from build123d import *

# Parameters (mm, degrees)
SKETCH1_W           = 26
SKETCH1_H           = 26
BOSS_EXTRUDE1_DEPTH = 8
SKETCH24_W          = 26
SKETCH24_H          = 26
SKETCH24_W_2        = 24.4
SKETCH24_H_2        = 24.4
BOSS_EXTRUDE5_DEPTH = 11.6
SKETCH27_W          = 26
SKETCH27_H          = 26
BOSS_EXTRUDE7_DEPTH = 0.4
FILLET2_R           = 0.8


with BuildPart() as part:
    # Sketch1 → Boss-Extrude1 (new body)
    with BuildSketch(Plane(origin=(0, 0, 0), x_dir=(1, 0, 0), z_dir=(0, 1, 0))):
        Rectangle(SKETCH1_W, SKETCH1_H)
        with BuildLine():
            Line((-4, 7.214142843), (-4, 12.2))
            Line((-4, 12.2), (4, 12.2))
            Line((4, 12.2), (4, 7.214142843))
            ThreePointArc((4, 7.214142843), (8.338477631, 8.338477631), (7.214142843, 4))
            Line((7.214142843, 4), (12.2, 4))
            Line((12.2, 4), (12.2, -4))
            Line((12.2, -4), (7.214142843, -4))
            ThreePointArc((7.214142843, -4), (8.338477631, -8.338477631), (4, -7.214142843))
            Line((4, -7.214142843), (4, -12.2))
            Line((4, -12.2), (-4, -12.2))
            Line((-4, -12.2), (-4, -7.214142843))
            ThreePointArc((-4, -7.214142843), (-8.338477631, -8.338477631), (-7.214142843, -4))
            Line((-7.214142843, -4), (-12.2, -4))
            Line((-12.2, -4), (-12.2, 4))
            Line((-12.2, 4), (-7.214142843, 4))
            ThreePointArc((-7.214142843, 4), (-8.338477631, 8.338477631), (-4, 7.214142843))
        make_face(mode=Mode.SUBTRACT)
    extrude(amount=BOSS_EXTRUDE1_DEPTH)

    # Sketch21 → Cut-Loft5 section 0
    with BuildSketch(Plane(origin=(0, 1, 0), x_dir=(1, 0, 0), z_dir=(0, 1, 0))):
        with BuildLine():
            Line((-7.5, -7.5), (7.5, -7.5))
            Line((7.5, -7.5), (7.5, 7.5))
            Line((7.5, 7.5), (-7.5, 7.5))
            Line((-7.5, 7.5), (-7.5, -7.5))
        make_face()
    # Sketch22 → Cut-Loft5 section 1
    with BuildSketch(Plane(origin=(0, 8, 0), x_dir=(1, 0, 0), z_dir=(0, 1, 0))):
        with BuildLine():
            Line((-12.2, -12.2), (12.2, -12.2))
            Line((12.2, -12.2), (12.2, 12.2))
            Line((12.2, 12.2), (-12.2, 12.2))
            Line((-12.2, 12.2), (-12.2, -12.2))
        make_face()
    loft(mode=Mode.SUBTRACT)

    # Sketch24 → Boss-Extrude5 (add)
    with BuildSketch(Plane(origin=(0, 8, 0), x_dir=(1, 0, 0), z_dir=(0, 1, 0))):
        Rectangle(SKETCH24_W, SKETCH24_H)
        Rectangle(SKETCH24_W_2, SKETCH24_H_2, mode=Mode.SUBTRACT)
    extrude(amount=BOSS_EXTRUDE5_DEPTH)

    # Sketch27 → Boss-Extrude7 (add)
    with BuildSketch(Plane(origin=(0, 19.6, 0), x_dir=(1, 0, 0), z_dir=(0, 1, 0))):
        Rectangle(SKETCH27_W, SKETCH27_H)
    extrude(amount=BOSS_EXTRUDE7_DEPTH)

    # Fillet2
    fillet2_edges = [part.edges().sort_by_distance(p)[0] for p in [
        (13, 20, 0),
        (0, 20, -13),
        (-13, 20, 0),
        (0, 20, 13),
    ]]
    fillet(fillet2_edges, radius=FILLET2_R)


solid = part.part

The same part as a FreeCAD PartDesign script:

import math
import FreeCAD as App
import Part
import Sketcher
Q = App.Units.Quantity


def edges_at(feature, points):
    """Names of the edges that pass closest to the given points."""
    edges = feature.Shape.Edges
    near = lambda p: min(range(len(edges)), key=lambda i: edges[i].distToShape(Part.Vertex(*p))[0])
    return sorted({f"Edge{near(p) + 1}" for p in points})

doc = App.newDocument("Part")
body = doc.addObject("PartDesign::Body", "Body")

sketch1 = body.newObject("Sketcher::SketchObject", "Sketch")
sketch1.AttachmentSupport = (doc.getObject("XZ_Plane"), [""])
sketch1.MapMode = "FlatFace"
sketch1.addGeometry([
    Part.LineSegment(App.Vector(-13, -13, 0), App.Vector(-13, 13, 0)),
    Part.LineSegment(App.Vector(-13, 13, 0), App.Vector(13, 13, 0)),
    Part.LineSegment(App.Vector(13, 13, 0), App.Vector(13, -13, 0)),
    Part.LineSegment(App.Vector(13, -13, 0), App.Vector(-13, -13, 0)),
    Part.ArcOfCircle(Part.Circle(App.Vector(-6.5, -6.5, 0), App.Vector(0, 0, 1), 2.6), math.radians(106), math.radians(344)),
    Part.LineSegment(App.Vector(-4, -7.2, 0), App.Vector(-4, -12.2, 0)),
    Part.LineSegment(App.Vector(-4, -12.2, 0), App.Vector(4, -12.2, 0)),
    Part.LineSegment(App.Vector(4, -12.2, 0), App.Vector(4, -7.2, 0)),
    Part.ArcOfCircle(Part.Circle(App.Vector(6.5, -6.5, 0), App.Vector(0, 0, 1), 2.6), math.radians(-164), math.radians(74)),
    Part.LineSegment(App.Vector(7.2, -4, 0), App.Vector(12.2, -4, 0)),
    Part.LineSegment(App.Vector(12.2, -4, 0), App.Vector(12.2, 4, 0)),
    Part.LineSegment(App.Vector(12.2, 4, 0), App.Vector(7.2, 4, 0)),
    Part.ArcOfCircle(Part.Circle(App.Vector(6.5, 6.5, 0), App.Vector(0, 0, 1), 2.6), math.radians(-74), math.radians(164)),
    Part.LineSegment(App.Vector(4, 7.2, 0), App.Vector(4, 12.2, 0)),
    Part.LineSegment(App.Vector(4, 12.2, 0), App.Vector(-4, 12.2, 0)),
    Part.LineSegment(App.Vector(-4, 12.2, 0), App.Vector(-4, 7.2, 0)),
    Part.ArcOfCircle(Part.Circle(App.Vector(-6.5, 6.5, 0), App.Vector(0, 0, 1), 2.6), math.radians(16), math.radians(254)),
    Part.LineSegment(App.Vector(-7.2, 4, 0), App.Vector(-12.2, 4, 0)),
    Part.LineSegment(App.Vector(-12.2, 4, 0), App.Vector(-12.2, -4, 0)),
    Part.LineSegment(App.Vector(-12.2, -4, 0), App.Vector(-7.2, -4, 0)),
], False)
sketch1.addConstraint([
    Sketcher.Constraint("Coincident", 0, 2, 1, 1),
    Sketcher.Constraint("Coincident", 1, 2, 2, 1),
    Sketcher.Constraint("Coincident", 2, 2, 3, 1),
    Sketcher.Constraint("Coincident", 3, 2, 0, 1),
    Sketcher.Constraint("Coincident", 4, 2, 5, 1),
    Sketcher.Constraint("Coincident", 5, 2, 6, 1),
    Sketcher.Constraint("Coincident", 6, 2, 7, 1),
    Sketcher.Constraint("Coincident", 7, 2, 8, 1),
    Sketcher.Constraint("Coincident", 8, 2, 9, 1),
    Sketcher.Constraint("Coincident", 9, 2, 10, 1),
    Sketcher.Constraint("Coincident", 10, 2, 11, 1),
    Sketcher.Constraint("Coincident", 11, 2, 12, 1),
    Sketcher.Constraint("Coincident", 12, 2, 13, 1),
    Sketcher.Constraint("Coincident", 13, 2, 14, 1),
    Sketcher.Constraint("Coincident", 14, 2, 15, 1),
    Sketcher.Constraint("Coincident", 15, 2, 16, 1),
    Sketcher.Constraint("Coincident", 16, 2, 17, 1),
    Sketcher.Constraint("Coincident", 17, 2, 18, 1),
    Sketcher.Constraint("Coincident", 18, 2, 19, 1),
    Sketcher.Constraint("Coincident", 19, 2, 4, 1),
    Sketcher.Constraint("Vertical", 0),
    Sketcher.Constraint("Horizontal", 1),
    Sketcher.Constraint("Vertical", 2),
    Sketcher.Constraint("Horizontal", 3),
    Sketcher.Constraint("Vertical", 5),
    Sketcher.Constraint("Horizontal", 6),
    Sketcher.Constraint("Vertical", 7),
    Sketcher.Constraint("Horizontal", 9),
    Sketcher.Constraint("Vertical", 10),
    Sketcher.Constraint("Horizontal", 11),
    Sketcher.Constraint("Vertical", 13),
    Sketcher.Constraint("Horizontal", 14),
    Sketcher.Constraint("Vertical", 15),
    Sketcher.Constraint("Horizontal", 17),
    Sketcher.Constraint("Vertical", 18),
    Sketcher.Constraint("Horizontal", 19),
    Sketcher.Constraint("Equal", 4, 8),
    Sketcher.Constraint("Equal", 8, 12),
    Sketcher.Constraint("Equal", 12, 16),
    Sketcher.Constraint("Symmetric", 4, 3, 12, 3, -1, 1),
    Sketcher.Constraint("Symmetric", 8, 3, 16, 3, -1, 1),
    Sketcher.Constraint("Symmetric", 0, 2, 2, 2, -1, 1),
    Sketcher.Constraint("Symmetric", 5, 2, 13, 2, -1, 1),
    Sketcher.Constraint("Symmetric", 9, 2, 17, 2, -1, 1),
    Sketcher.Constraint("Symmetric", 4, 3, 8, 3, -2),
    Sketcher.Constraint("Horizontal", 4, 2, 7, 2),
    Sketcher.Constraint("Horizontal", 12, 2, 15, 2),
    Sketcher.Constraint("Horizontal", 11, 2, 16, 2),
    Sketcher.Constraint("Horizontal", 9, 2, 18, 2),
    Sketcher.Constraint("Equal", 3, 0),
    Sketcher.Constraint("Equal", 19, 5),
    Sketcher.Constraint("Equal", 14, 10),
    Sketcher.Constraint("Radius", 4, Q("2.6 mm")),
    Sketcher.Constraint("DistanceX", 1, 1, 1, 2, Q("26 mm")),
    Sketcher.Constraint("DistanceX", 6, 1, 6, 2, Q("8 mm")),
    Sketcher.Constraint("DistanceX", 4, 3, 8, 3, Q("13 mm")),
    Sketcher.Constraint("DistanceY", 8, 3, 12, 3, Q("13 mm")),
    Sketcher.Constraint("DistanceY", 5, 2, -1, 1, Q("12.2 mm")),
])
pad1 = body.newObject("PartDesign::Pad", "Pad")
pad1.Profile = sketch1
pad1.Length = 8
pad1.Reversed = True

sketch2 = body.newObject("Sketcher::SketchObject", "Sketch001")
sketch2.AttachmentSupport = (doc.getObject("XZ_Plane"), [""])
sketch2.MapMode = "FlatFace"
sketch2.AttachmentOffset = App.Placement(App.Vector(0, 0, -1), App.Rotation())
sketch2.addGeometry([
    Part.LineSegment(App.Vector(-8, 8, 0), App.Vector(8, 8, 0)),
    Part.LineSegment(App.Vector(8, 8, 0), App.Vector(8, -8, 0)),
    Part.LineSegment(App.Vector(8, -8, 0), App.Vector(-8, -8, 0)),
    Part.LineSegment(App.Vector(-8, -8, 0), App.Vector(-8, 8, 0)),
], False)
sketch2.addConstraint([
    Sketcher.Constraint("Coincident", 0, 2, 1, 1),
    Sketcher.Constraint("Coincident", 1, 2, 2, 1),
    Sketcher.Constraint("Coincident", 2, 2, 3, 1),
    Sketcher.Constraint("Coincident", 3, 2, 0, 1),
    Sketcher.Constraint("Horizontal", 0),
    Sketcher.Constraint("Vertical", 1),
    Sketcher.Constraint("Horizontal", 2),
    Sketcher.Constraint("Vertical", 3),
    Sketcher.Constraint("Symmetric", 0, 2, 2, 2, -1, 1),
    Sketcher.Constraint("Equal", 2, 1),
    Sketcher.Constraint("DistanceX", 0, 1, 0, 2, Q("15 mm")),
])

sketch3 = body.newObject("Sketcher::SketchObject", "Sketch002")
sketch3.AttachmentSupport = (doc.getObject("XZ_Plane"), [""])
sketch3.MapMode = "FlatFace"
sketch3.AttachmentOffset = App.Placement(App.Vector(0, 0, -8), App.Rotation())
sketch3.addGeometry([
    Part.LineSegment(App.Vector(-12, 12, 0), App.Vector(12, 12, 0)),
    Part.LineSegment(App.Vector(12, 12, 0), App.Vector(12, -12, 0)),
    Part.LineSegment(App.Vector(12, -12, 0), App.Vector(-12, -12, 0)),
    Part.LineSegment(App.Vector(-12, -12, 0), App.Vector(-12, 12, 0)),
], False)
sketch3.addConstraint([
    Sketcher.Constraint("Coincident", 0, 2, 1, 1),
    Sketcher.Constraint("Coincident", 1, 2, 2, 1),
    Sketcher.Constraint("Coincident", 2, 2, 3, 1),
    Sketcher.Constraint("Coincident", 3, 2, 0, 1),
    Sketcher.Constraint("Horizontal", 0),
    Sketcher.Constraint("Vertical", 1),
    Sketcher.Constraint("Horizontal", 2),
    Sketcher.Constraint("Vertical", 3),
    Sketcher.Constraint("Symmetric", 0, 2, 2, 2, -1, 1),
    Sketcher.Constraint("Equal", 2, 1),
    Sketcher.Constraint("DistanceX", 0, 1, 0, 2, Q("24.4 mm")),
])

subtractiveloft = body.newObject("PartDesign::SubtractiveLoft", "SubtractiveLoft")
subtractiveloft.Profile = sketch2
subtractiveloft.Sections = [sketch3]

sketch4 = body.newObject("Sketcher::SketchObject", "Sketch003")
sketch4.AttachmentSupport = (doc.getObject("XZ_Plane"), [""])
sketch4.MapMode = "FlatFace"
sketch4.AttachmentOffset = App.Placement(App.Vector(0, 0, -8), App.Rotation())
sketch4.addGeometry([
    Part.LineSegment(App.Vector(-13, -13, 0), App.Vector(-13, 13, 0)),
    Part.LineSegment(App.Vector(-13, 13, 0), App.Vector(13, 13, 0)),
    Part.LineSegment(App.Vector(13, 13, 0), App.Vector(13, -13, 0)),
    Part.LineSegment(App.Vector(13, -13, 0), App.Vector(-13, -13, 0)),
    Part.LineSegment(App.Vector(12, 12, 0), App.Vector(-12, 12, 0)),
    Part.LineSegment(App.Vector(-12, 12, 0), App.Vector(-12, -12, 0)),
    Part.LineSegment(App.Vector(-12, -12, 0), App.Vector(12, -12, 0)),
    Part.LineSegment(App.Vector(12, -12, 0), App.Vector(12, 12, 0)),
], False)
sketch4.addConstraint([
    Sketcher.Constraint("Coincident", 0, 2, 1, 1),
    Sketcher.Constraint("Coincident", 1, 2, 2, 1),
    Sketcher.Constraint("Coincident", 2, 2, 3, 1),
    Sketcher.Constraint("Coincident", 3, 2, 0, 1),
    Sketcher.Constraint("Coincident", 4, 2, 5, 1),
    Sketcher.Constraint("Coincident", 5, 2, 6, 1),
    Sketcher.Constraint("Coincident", 6, 2, 7, 1),
    Sketcher.Constraint("Coincident", 7, 2, 4, 1),
    Sketcher.Constraint("Vertical", 0),
    Sketcher.Constraint("Horizontal", 1),
    Sketcher.Constraint("Vertical", 2),
    Sketcher.Constraint("Horizontal", 3),
    Sketcher.Constraint("Horizontal", 4),
    Sketcher.Constraint("Vertical", 5),
    Sketcher.Constraint("Horizontal", 6),
    Sketcher.Constraint("Vertical", 7),
    Sketcher.Constraint("Symmetric", 0, 2, 2, 2, -1, 1),
    Sketcher.Constraint("Symmetric", 4, 2, 6, 2, -1, 1),
    Sketcher.Constraint("Equal", 3, 0),
    Sketcher.Constraint("Equal", 6, 5),
    Sketcher.Constraint("DistanceX", 1, 1, 1, 2, Q("26 mm")),
    Sketcher.Constraint("DistanceX", 4, 2, 4, 1, Q("24.4 mm")),
])
pad2 = body.newObject("PartDesign::Pad", "Pad001")
pad2.Profile = sketch4
pad2.Length = 11.6
pad2.Reversed = True

sketch5 = body.newObject("Sketcher::SketchObject", "Sketch004")
sketch5.AttachmentSupport = (doc.getObject("XZ_Plane"), [""])
sketch5.MapMode = "FlatFace"
sketch5.AttachmentOffset = App.Placement(App.Vector(0, 0, -19.6), App.Rotation())
sketch5.addGeometry([
    Part.LineSegment(App.Vector(-13, -13, 0), App.Vector(-13, 13, 0)),
    Part.LineSegment(App.Vector(-13, 13, 0), App.Vector(13, 13, 0)),
    Part.LineSegment(App.Vector(13, 13, 0), App.Vector(13, -13, 0)),
    Part.LineSegment(App.Vector(13, -13, 0), App.Vector(-13, -13, 0)),
], False)
sketch5.addConstraint([
    Sketcher.Constraint("Coincident", 0, 2, 1, 1),
    Sketcher.Constraint("Coincident", 1, 2, 2, 1),
    Sketcher.Constraint("Coincident", 2, 2, 3, 1),
    Sketcher.Constraint("Coincident", 3, 2, 0, 1),
    Sketcher.Constraint("Vertical", 0),
    Sketcher.Constraint("Horizontal", 1),
    Sketcher.Constraint("Vertical", 2),
    Sketcher.Constraint("Horizontal", 3),
    Sketcher.Constraint("Symmetric", 0, 2, 2, 2, -1, 1),
    Sketcher.Constraint("Equal", 3, 0),
    Sketcher.Constraint("DistanceX", 1, 1, 1, 2, Q("26 mm")),
])
pad3 = body.newObject("PartDesign::Pad", "Pad002")
pad3.Profile = sketch5
pad3.Length = 0.4
pad3.Reversed = True
doc.recompute()

fillet = body.newObject("PartDesign::Fillet", "Fillet")
fillet.Base = (pad3, edges_at(pad3, [
    (13, 20, 0),
    (0, 20, -13),
    (-13, 20, 0),
    (0, 20, 13),
]))
fillet.Radius = 0.8

doc.recompute()
